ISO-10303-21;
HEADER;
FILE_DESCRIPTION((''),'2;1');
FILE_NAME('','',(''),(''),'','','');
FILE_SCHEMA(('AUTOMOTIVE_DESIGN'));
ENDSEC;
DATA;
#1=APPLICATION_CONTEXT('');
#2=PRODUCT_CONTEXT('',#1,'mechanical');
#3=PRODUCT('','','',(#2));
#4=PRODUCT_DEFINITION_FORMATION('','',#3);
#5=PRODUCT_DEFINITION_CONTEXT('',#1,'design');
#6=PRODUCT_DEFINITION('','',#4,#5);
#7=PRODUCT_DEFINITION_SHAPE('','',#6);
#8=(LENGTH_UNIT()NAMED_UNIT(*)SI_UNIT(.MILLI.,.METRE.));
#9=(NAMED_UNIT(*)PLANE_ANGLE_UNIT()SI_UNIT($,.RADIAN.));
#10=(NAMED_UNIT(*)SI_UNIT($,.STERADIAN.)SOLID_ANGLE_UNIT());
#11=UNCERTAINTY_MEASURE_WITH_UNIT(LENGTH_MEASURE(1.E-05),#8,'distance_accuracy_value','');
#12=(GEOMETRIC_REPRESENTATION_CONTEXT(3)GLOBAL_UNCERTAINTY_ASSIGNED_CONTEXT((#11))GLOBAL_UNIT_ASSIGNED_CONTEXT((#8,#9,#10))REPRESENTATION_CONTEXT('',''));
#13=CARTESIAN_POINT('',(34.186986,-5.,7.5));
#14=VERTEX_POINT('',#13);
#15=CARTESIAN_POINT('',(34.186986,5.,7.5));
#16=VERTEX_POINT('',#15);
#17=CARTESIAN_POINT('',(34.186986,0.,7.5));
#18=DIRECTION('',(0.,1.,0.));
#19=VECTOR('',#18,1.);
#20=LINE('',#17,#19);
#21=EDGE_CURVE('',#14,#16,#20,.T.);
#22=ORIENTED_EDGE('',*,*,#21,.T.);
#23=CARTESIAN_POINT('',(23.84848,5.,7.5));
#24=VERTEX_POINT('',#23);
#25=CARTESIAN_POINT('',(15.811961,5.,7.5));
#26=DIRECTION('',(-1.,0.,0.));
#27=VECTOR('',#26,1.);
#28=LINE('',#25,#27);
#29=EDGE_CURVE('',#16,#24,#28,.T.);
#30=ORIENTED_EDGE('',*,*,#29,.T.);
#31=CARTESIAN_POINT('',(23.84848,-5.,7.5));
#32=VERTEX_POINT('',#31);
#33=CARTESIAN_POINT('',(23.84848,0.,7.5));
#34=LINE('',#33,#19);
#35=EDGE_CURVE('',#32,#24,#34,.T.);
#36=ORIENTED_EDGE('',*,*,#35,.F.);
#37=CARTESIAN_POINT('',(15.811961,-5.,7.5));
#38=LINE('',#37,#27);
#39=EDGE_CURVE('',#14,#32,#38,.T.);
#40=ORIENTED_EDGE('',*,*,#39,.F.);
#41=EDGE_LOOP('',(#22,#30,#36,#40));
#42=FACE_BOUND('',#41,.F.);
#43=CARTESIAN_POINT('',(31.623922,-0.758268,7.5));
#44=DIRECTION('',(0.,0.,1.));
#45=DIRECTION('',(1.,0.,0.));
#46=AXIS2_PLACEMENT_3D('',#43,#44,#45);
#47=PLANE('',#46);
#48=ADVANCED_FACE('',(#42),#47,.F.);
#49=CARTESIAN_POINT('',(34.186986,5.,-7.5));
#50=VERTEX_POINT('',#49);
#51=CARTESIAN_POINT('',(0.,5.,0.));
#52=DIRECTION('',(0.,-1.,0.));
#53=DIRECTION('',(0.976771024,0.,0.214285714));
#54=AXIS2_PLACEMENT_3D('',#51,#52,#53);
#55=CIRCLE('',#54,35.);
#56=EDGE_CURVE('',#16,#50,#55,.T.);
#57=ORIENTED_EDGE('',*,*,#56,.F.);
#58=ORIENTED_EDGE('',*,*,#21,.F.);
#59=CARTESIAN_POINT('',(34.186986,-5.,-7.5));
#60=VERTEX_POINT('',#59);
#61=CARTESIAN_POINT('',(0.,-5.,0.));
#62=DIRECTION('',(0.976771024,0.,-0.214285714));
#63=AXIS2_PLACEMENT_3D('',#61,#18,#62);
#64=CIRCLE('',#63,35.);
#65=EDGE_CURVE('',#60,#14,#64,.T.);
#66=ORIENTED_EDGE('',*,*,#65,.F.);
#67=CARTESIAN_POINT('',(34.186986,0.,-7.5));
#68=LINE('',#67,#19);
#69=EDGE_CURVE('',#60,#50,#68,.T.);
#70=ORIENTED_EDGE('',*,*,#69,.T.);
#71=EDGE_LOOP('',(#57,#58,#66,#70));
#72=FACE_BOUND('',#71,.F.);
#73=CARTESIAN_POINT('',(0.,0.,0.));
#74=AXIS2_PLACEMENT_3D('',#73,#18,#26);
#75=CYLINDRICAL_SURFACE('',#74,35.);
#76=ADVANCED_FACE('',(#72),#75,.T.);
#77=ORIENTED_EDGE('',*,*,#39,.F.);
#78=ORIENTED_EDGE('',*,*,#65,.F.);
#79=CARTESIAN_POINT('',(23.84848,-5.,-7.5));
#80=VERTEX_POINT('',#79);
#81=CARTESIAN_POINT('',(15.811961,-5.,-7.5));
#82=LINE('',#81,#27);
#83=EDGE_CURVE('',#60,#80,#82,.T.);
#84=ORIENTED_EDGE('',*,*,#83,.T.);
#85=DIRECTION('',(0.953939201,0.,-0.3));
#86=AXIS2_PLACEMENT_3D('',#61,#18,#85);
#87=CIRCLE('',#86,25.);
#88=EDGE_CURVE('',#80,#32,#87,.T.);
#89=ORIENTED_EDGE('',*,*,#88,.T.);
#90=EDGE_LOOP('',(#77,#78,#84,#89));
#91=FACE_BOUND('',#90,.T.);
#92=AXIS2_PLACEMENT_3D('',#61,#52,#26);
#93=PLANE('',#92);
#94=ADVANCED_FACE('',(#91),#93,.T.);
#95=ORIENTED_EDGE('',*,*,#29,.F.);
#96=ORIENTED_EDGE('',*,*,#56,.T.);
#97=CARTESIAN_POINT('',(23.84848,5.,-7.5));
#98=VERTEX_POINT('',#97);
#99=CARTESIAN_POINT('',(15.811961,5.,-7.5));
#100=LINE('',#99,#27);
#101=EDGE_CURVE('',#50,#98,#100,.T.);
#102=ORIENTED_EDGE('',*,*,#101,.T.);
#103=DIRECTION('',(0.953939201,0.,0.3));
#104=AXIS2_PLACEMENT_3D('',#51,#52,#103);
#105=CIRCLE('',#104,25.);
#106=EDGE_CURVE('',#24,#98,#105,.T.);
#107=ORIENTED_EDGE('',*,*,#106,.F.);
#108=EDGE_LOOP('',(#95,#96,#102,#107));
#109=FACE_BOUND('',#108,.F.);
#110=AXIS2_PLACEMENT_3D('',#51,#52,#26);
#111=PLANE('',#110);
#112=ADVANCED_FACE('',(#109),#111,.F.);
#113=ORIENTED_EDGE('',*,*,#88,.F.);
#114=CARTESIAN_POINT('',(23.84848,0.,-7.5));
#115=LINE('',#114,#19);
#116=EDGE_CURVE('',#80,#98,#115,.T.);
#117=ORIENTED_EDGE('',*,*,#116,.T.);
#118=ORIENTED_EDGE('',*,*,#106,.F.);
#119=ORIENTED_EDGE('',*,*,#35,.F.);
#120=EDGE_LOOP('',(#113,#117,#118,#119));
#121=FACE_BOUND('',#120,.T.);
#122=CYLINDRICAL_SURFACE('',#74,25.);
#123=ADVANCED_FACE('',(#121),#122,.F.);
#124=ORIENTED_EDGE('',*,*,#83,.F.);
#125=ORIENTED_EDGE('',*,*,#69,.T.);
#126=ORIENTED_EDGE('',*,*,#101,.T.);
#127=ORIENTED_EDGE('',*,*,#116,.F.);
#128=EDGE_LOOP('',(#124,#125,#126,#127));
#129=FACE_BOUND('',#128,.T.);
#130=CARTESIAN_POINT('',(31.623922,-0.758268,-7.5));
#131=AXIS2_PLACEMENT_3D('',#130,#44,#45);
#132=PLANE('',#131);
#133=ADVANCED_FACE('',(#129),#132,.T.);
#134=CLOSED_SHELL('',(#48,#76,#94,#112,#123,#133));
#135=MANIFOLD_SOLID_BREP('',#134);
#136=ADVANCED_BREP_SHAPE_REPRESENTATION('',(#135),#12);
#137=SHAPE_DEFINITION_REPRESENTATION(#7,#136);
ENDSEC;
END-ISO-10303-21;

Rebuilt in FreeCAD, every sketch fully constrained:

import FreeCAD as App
import Part
import Sketcher

V = App.Vector
Q = App.Units.Quantity

doc = App.newDocument("Part")
params = doc.addObject("Spreadsheet::Sheet", "Params")
for row, (alias, value) in enumerate([
    ("sketch1_width", "10 mm"),
    ("revolution_angle", "360 deg"),
    ("pocket1_length", "15 mm"),
], start=1):
    params.set(f"A{row}", alias)
    params.set(f"B{row}", "=" + value)
    params.setAlias(f"B{row}", alias)

body = doc.addObject("PartDesign::Body", "Body")

# Sketch on XY plane
sketch1 = body.newObject("Sketcher::SketchObject", "Sketch")
sketch1.AttachmentSupport = (doc.getObject("XY_Plane"), [""])
sketch1.MapMode = "FlatFace"
sketch1.addGeometry([
    Part.LineSegment(V(-35, 5, 0), V(-35, -5, 0)),
    Part.LineSegment(V(-35, -5, 0), V(-25, -5, 0)),
    Part.LineSegment(V(-25, -5, 0), V(-25, 5, 0)),
    Part.LineSegment(V(-25, 5, 0), V(-35, 5, 0)),
], False)
sketch1.addConstraint([
    Sketcher.Constraint("Coincident", 0, 2, 1, 1),
    Sketcher.Constraint("Coincident", 1, 2, 2, 1),
    Sketcher.Constraint("Coincident", 2, 2, 3, 1),
    Sketcher.Constraint("Coincident", 3, 2, 0, 1),
    Sketcher.Constraint("Vertical", 0),
    Sketcher.Constraint("Horizontal", 1),
    Sketcher.Constraint("Vertical", 2),
    Sketcher.Constraint("Horizontal", 3),
    Sketcher.Constraint("Equal", 3, 0),
    Sketcher.Constraint("DistanceX", 1, 1, 1, 2, Q("10 mm")),
    Sketcher.Constraint("DistanceX", 0, 2, -1, 1, Q("35 mm")),
    Sketcher.Constraint("DistanceY", 0, 2, -1, 1, Q("5 mm")),
])
sketch1.setExpression("Constraints[9]", "Params.sketch1_width")
revolution = body.newObject("PartDesign::Revolution", "Revolution")
revolution.Profile = sketch1
revolution.ReferenceAxis = (sketch1, ["V_Axis"])
revolution.setExpression("Angle", "Params.revolution_angle")

# Sketch on XY plane
sketch2 = body.newObject("Sketcher::SketchObject", "Sketch001")
sketch2.AttachmentSupport = (doc.getObject("XY_Plane"), [""])
sketch2.MapMode = "FlatFace"
sketch2.addGeometry([
    Part.LineSegment(V(40, 8, 0), V(23, 8, 0)),
    Part.LineSegment(V(23, 8, 0), V(23, -10, 0)),
    Part.LineSegment(V(23, -10, 0), V(40, -10, 0)),
    Part.LineSegment(V(40, -10, 0), V(40, 8, 0)),
], False)
sketch2.addConstraint([
    Sketcher.Constraint("Coincident", 0, 2, 1, 1),
    Sketcher.Constraint("Coincident", 1, 2, 2, 1),
    Sketcher.Constraint("Coincident", 2, 2, 3, 1),
    Sketcher.Constraint("Coincident", 3, 2, 0, 1),
    Sketcher.Constraint("Vertical", 1),
    Sketcher.Constraint("Horizontal", 2),
    Sketcher.Constraint("Vertical", 3),
    Sketcher.Constraint("DistanceX", 2, 1, 2, 2, Q("16.623655 mm")),
    Sketcher.Constraint("DistanceY", 1, 2, 1, 1, Q("17.594376 mm")),
    Sketcher.Constraint("DistanceY", 3, 1, 3, 2, Q("17.715717 mm")),
    Sketcher.Constraint("DistanceX", -1, 1, 2, 2, Q("39.921038 mm")),
    Sketcher.Constraint("DistanceY", -1, 1, 0, 2, Q("8.008474 mm")),
])
pocket1 = body.newObject("PartDesign::Pocket", "Pocket")
pocket1.Profile = sketch2
pocket1.setExpression("Length", "Params.pocket1_length")
pocket1.Midplane = True

doc.recompute()
